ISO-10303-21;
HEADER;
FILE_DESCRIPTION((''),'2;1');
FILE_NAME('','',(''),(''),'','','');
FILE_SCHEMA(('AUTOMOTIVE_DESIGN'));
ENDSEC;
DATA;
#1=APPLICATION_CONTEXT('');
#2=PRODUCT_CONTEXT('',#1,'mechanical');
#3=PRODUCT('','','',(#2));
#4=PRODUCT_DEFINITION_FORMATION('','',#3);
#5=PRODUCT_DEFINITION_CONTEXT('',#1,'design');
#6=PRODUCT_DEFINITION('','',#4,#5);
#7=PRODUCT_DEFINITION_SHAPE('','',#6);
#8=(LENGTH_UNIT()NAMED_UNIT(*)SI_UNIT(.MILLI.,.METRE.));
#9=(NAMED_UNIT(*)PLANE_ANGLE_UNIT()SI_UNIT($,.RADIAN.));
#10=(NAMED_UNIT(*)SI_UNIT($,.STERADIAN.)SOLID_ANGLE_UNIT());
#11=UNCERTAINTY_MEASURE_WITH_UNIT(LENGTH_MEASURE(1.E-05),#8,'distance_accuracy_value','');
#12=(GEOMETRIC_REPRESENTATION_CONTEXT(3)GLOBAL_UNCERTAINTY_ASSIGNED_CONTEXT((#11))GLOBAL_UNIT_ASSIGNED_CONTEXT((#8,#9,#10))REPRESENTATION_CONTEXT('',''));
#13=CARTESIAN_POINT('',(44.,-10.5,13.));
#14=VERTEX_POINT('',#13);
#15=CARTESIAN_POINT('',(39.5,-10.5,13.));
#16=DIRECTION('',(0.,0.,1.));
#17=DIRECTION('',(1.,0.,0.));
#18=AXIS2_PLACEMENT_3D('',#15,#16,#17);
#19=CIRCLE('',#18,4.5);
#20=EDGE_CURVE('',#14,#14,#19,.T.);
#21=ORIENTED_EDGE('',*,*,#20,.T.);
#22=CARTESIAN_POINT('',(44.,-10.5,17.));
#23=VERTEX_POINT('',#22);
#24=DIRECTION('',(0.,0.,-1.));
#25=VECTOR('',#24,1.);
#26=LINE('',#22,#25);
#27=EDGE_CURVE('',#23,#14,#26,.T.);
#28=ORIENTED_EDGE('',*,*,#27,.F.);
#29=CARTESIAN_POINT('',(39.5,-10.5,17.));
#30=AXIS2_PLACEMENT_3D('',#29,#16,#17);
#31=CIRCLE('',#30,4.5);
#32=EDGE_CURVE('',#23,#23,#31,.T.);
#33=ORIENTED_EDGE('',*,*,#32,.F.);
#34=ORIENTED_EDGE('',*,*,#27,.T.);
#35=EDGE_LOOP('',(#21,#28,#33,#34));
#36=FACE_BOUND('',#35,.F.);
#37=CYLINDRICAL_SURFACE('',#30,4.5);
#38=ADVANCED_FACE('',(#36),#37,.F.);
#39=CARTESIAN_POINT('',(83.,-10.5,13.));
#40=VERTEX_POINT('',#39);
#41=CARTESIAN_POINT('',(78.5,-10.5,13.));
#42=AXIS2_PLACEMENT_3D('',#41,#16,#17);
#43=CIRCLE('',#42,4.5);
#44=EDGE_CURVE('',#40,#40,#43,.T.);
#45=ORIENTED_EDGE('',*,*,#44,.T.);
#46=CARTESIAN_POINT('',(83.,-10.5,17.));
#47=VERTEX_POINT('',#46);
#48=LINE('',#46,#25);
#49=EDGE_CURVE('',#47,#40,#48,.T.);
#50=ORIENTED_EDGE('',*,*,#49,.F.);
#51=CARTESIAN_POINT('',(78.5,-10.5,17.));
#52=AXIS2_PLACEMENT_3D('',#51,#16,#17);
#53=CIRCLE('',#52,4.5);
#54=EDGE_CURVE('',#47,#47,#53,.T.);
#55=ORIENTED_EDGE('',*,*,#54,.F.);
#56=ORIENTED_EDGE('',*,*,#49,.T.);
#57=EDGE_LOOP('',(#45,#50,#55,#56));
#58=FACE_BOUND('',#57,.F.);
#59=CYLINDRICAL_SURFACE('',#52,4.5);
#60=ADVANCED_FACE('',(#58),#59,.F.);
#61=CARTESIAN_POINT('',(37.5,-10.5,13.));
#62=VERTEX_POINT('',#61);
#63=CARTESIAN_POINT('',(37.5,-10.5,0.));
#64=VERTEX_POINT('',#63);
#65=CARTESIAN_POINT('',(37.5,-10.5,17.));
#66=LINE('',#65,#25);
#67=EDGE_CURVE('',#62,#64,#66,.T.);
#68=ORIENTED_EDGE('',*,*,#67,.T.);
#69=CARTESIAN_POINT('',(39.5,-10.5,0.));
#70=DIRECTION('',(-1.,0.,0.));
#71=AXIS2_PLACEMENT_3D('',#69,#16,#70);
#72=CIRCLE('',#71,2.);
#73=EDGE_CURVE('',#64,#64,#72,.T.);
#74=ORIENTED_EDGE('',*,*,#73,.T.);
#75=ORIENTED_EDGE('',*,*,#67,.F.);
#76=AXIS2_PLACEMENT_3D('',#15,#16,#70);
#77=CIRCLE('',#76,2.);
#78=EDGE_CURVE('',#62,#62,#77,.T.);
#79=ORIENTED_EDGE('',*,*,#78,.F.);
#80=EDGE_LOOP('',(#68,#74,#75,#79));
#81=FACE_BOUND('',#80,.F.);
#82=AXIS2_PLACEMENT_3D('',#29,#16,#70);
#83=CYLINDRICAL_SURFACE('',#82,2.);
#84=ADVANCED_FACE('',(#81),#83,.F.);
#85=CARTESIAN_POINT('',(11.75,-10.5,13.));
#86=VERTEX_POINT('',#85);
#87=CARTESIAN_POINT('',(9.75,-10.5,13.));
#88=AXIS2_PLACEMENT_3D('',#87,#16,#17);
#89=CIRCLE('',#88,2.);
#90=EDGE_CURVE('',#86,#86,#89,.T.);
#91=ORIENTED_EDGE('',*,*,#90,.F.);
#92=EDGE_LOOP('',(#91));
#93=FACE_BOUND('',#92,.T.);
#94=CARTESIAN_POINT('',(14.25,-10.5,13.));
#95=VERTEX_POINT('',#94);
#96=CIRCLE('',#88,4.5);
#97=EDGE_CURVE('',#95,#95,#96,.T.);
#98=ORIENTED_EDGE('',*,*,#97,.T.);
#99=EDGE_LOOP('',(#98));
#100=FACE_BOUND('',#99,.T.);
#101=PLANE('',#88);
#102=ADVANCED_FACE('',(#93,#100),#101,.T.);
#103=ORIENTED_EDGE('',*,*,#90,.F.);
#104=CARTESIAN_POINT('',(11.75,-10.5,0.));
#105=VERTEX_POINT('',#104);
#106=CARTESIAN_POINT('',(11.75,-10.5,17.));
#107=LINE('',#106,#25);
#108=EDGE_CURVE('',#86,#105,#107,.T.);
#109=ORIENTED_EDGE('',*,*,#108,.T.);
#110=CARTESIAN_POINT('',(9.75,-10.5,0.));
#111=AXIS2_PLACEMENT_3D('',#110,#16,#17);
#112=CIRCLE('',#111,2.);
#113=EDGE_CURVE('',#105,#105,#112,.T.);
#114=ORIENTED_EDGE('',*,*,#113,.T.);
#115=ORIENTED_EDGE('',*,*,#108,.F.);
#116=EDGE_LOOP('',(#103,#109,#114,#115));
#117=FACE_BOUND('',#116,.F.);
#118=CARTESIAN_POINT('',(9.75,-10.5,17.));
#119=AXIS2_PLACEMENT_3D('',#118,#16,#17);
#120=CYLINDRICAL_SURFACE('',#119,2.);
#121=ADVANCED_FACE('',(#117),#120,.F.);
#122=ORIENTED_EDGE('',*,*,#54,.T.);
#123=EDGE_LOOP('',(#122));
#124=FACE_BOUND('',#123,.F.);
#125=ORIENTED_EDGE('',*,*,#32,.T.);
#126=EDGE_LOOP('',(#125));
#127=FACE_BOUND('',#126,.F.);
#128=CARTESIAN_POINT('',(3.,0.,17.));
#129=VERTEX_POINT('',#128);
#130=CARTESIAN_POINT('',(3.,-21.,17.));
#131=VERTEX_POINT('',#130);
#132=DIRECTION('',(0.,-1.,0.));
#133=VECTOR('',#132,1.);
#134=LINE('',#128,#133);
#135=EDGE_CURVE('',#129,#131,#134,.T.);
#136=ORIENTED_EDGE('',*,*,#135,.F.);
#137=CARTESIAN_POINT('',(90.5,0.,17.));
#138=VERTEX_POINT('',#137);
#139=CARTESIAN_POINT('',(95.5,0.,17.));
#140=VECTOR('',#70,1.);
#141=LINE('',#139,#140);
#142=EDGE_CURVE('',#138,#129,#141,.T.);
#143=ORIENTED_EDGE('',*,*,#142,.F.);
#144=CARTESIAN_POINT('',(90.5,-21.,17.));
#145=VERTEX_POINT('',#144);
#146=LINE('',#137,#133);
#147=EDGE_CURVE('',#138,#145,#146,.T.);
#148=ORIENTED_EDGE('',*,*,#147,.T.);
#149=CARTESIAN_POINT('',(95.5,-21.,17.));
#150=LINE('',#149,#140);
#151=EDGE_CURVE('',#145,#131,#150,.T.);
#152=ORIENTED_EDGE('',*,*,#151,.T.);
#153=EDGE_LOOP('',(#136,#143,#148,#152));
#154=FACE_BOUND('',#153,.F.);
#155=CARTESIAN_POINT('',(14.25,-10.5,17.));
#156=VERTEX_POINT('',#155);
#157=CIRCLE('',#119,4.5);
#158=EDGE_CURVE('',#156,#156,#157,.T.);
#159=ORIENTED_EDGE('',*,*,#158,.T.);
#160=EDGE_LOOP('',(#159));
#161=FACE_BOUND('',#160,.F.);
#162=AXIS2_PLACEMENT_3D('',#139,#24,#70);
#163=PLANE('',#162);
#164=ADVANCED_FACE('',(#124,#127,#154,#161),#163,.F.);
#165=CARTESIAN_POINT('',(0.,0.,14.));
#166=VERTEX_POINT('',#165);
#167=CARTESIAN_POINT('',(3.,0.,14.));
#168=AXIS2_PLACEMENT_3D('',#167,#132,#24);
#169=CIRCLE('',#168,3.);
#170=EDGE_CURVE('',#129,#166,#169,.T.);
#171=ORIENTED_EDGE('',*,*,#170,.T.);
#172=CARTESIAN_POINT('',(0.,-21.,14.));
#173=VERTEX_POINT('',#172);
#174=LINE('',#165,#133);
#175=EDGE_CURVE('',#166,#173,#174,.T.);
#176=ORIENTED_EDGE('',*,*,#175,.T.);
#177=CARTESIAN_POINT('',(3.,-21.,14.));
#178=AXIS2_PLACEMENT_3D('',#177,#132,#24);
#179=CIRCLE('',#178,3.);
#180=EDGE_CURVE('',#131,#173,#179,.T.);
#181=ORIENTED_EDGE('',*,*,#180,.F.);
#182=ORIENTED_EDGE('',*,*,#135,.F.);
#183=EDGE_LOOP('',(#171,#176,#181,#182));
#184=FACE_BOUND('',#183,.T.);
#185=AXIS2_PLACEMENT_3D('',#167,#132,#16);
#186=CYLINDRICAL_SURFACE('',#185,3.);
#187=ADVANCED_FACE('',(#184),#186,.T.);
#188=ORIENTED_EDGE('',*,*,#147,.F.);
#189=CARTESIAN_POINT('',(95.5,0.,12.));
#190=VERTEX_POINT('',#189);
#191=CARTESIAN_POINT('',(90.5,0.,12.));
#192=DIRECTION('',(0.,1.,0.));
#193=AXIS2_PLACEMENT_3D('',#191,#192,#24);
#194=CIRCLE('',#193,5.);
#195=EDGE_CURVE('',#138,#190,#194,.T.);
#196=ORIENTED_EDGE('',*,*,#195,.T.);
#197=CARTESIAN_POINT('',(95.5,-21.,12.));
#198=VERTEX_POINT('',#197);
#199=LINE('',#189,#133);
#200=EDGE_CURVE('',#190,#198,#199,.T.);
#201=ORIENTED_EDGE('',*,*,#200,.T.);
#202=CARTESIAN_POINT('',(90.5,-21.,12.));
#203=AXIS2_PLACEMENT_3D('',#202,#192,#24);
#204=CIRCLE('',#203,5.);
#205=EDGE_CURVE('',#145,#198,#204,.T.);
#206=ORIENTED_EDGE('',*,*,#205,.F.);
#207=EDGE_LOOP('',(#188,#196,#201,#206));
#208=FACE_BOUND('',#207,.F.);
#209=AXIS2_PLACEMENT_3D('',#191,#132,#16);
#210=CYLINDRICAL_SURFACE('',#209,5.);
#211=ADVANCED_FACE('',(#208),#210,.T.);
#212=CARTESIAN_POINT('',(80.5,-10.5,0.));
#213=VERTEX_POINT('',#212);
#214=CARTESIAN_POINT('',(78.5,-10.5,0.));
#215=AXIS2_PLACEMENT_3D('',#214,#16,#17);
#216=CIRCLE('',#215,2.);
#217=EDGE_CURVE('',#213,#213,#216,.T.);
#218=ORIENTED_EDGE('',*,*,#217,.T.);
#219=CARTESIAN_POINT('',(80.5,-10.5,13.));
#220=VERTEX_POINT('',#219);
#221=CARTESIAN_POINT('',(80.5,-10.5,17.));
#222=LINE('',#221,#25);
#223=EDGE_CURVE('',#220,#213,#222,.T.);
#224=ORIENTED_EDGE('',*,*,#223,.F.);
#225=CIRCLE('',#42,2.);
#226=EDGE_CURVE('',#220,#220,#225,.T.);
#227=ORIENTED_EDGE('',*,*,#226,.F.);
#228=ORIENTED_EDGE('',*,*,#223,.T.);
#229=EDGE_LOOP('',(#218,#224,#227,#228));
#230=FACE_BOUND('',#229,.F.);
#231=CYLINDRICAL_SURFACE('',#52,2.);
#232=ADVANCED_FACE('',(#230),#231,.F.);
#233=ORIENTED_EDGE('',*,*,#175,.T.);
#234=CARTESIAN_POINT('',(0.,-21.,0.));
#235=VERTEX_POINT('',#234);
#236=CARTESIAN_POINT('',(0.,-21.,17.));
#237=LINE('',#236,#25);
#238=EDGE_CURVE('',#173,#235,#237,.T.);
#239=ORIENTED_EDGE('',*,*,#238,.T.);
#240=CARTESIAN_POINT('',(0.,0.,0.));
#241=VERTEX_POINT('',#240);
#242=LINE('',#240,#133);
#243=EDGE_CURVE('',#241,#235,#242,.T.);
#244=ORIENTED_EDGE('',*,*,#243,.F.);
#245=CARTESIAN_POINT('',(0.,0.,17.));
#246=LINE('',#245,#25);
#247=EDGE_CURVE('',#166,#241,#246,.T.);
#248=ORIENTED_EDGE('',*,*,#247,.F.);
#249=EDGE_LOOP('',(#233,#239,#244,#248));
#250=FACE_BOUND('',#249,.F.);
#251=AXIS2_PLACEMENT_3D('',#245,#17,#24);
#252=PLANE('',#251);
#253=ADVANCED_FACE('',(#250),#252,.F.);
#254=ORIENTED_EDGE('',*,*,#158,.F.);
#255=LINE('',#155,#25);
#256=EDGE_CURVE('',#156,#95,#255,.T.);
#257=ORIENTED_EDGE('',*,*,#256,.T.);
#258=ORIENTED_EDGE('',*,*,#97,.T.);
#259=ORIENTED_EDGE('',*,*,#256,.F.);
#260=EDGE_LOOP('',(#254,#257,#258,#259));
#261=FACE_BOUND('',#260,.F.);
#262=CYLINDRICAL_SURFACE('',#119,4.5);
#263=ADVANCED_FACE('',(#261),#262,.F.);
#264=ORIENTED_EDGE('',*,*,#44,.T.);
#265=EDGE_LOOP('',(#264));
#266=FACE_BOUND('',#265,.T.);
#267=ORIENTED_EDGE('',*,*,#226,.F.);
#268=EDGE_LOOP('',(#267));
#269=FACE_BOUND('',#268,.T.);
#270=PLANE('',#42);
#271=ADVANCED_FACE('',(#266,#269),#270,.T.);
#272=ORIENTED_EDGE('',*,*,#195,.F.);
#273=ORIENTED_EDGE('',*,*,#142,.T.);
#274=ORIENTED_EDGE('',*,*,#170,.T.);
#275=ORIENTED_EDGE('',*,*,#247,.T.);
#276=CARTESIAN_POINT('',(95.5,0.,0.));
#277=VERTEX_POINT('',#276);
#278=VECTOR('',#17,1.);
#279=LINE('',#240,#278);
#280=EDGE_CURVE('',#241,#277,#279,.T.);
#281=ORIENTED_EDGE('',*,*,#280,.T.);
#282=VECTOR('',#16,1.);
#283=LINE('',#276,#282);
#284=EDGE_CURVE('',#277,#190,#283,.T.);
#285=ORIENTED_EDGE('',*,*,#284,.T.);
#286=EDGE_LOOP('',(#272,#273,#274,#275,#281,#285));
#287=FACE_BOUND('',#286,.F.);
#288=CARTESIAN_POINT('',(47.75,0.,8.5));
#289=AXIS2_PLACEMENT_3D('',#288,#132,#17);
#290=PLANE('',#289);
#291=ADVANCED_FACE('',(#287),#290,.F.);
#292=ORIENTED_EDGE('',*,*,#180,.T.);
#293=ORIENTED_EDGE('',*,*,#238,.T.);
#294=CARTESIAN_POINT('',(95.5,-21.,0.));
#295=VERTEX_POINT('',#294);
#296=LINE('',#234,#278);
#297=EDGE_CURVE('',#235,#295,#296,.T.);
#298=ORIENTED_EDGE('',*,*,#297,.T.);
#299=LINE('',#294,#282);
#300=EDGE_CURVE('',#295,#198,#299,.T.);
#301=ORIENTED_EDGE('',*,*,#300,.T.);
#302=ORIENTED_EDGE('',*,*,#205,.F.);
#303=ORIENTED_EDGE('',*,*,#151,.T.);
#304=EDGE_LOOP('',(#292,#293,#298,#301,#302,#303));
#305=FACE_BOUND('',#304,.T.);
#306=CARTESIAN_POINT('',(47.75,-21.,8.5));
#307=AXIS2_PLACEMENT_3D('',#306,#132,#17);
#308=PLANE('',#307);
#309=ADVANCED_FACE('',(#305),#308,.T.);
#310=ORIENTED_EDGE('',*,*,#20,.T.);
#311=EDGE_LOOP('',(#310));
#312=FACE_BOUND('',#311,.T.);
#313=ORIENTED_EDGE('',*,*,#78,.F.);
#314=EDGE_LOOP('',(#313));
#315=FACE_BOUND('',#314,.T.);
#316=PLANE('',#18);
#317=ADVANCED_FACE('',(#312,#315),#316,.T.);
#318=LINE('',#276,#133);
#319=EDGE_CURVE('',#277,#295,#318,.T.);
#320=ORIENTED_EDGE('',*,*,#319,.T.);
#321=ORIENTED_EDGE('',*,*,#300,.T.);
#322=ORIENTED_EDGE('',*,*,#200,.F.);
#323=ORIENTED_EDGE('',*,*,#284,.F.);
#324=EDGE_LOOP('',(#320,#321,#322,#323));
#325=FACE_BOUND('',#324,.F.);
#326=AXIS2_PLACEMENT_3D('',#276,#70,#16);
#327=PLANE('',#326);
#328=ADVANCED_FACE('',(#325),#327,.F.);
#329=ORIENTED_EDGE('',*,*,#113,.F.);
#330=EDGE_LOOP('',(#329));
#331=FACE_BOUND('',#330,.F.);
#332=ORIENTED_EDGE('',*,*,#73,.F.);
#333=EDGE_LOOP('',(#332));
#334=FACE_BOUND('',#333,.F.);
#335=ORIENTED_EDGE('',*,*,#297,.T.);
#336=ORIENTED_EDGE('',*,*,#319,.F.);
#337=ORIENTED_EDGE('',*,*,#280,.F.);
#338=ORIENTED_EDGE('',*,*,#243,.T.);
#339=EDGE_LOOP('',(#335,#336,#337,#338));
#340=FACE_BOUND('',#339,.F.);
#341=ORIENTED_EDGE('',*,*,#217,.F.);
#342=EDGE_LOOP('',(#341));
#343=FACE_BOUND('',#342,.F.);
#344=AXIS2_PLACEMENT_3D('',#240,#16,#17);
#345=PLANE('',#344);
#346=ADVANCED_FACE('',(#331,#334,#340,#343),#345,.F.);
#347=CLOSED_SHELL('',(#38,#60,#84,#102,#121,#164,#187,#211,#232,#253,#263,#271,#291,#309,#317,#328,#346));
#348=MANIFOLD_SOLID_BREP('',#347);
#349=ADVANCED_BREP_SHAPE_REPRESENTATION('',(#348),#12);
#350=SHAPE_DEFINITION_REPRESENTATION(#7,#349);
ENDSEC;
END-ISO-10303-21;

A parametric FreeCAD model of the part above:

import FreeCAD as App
import Part
import Sketcher

V = App.Vector


def edges_at(feature, points):
    """Names of the edges that pass closest to the given points."""
    edges = feature.Shape.Edges
    near = lambda p: min(range(len(edges)), key=lambda i: edges[i].distToShape(Part.Vertex(*p))[0])
    return sorted({f"Edge{near(p) + 1}" for p in points})


def add_polygon(sketch, points):
    """Adds a closed chain of lines whose ends are joined by coincident constraints."""
    first, n = sketch.GeometryCount, len(points)
    for a, b in zip(points, points[1:] + points[:1]):
        sketch.addGeometry(Part.LineSegment(App.Vector(*a, 0), App.Vector(*b, 0)), False)
    for i in range(n):
        sketch.addConstraint(Sketcher.Constraint("Coincident", first + i, 2, first + (i + 1) % n, 1))

doc = App.newDocument("Part")
params = doc.addObject("Spreadsheet::Sheet", "Params")
for row, (alias, value) in enumerate([
    ("sketch1_height", "17 mm"),
    ("sketch1_width", "95.5 mm"),
    ("pad1_length", "21 mm"),
    ("fillet_radius", "5 mm"),
    ("sketch2_diameter", "4 mm"),
    ("pocket1_length", "25 mm"),
    ("sketch3_diameter", "9 mm"),
    ("pocket2_length", "4 mm"),
    ("fillet2_radius", "3 mm"),
], start=1):
    params.set(f"A{row}", alias)
    params.set(f"B{row}", "=" + value)
    params.setAlias(f"B{row}", alias)

body = doc.addObject("PartDesign::Body", "Body")

sketch1 = doc.addObject("Sketcher::SketchObject", "Sketch")
body.addObject(sketch1)
sketch1.AttachmentSupport = (doc.XZ_Plane, [""])
sketch1.MapMode = "FlatFace"
add_polygon(sketch1, [(95.5, 17), (0, 17), (0, 0), (95.5, 0)])
sketch1.addConstraint(Sketcher.Constraint("Horizontal", 0))
sketch1.addConstraint(Sketcher.Constraint("Vertical", 1))
sketch1.addConstraint(Sketcher.Constraint("Horizontal", 2))
sketch1.addConstraint(Sketcher.Constraint("Vertical", 3))
sketch1.addConstraint(Sketcher.Constraint("Coincident", 1, 2, -1, 1))
sketch1.addConstraint(Sketcher.Constraint("DistanceY", 1, 2, 1, 1, 17.0))
sketch1.addConstraint(Sketcher.Constraint("DistanceX", 0, 2, 0, 1, 95.5))
sketch1.setExpression("Constraints[9]", "Params.sketch1_height")
sketch1.setExpression("Constraints[10]", "Params.sketch1_width")
pad1 = doc.addObject("PartDesign::Pad", "Pad")
body.addObject(pad1)
pad1.Profile = sketch1
pad1.setExpression("Length", "Params.pad1_length")
doc.recompute()

fillet = doc.addObject("PartDesign::Fillet", "Fillet")
body.addObject(fillet)
fillet.Base = (pad1, edges_at(pad1, [(95.5, -10.5, 17)]))
fillet.setExpression("Radius", "Params.fillet_radius")

sketch2 = doc.addObject("Sketcher::SketchObject", "Sketch001")
body.addObject(sketch2)
sketch2.AttachmentSupport = (doc.XY_Plane, [""])
sketch2.MapMode = "FlatFace"
sketch2.AttachmentOffset = App.Placement(V(0, 0, 17), App.Rotation())
sketch2.addGeometry(Part.Circle(V(39.5, -10.5, 0), V(0, 0, 1), 2), False)
sketch2.addGeometry(Part.Circle(V(9.75, -10.5, 0), V(0, 0, 1), 2), False)
sketch2.addGeometry(Part.Circle(V(78.5, -10.5, 0), V(0, 0, 1), 2), False)
sketch2.addConstraint(Sketcher.Constraint("Equal", 0, 1))
sketch2.addConstraint(Sketcher.Constraint("Equal", 1, 2))
sketch2.addConstraint(Sketcher.Constraint("Horizontal", 0, 3, 1, 3))
sketch2.addConstraint(Sketcher.Constraint("Horizontal", 1, 3, 2, 3))
sketch2.addConstraint(Sketcher.Constraint("Diameter", 0, 4.0))
sketch2.addConstraint(Sketcher.Constraint("DistanceX", 0, 3, 2, 3, 39.0))
sketch2.addConstraint(Sketcher.Constraint("DistanceX", -1, 1, 0, 3, 39.5))
sketch2.addConstraint(Sketcher.Constraint("DistanceY", 0, 3, -1, 1, 10.5))
sketch2.addConstraint(Sketcher.Constraint("DistanceX", -1, 1, 1, 3, 9.75))
sketch2.setExpression("Constraints[4]", "Params.sketch2_diameter")
pocket1 = doc.addObject("PartDesign::Pocket", "Pocket")
body.addObject(pocket1)
pocket1.Profile = sketch2
pocket1.setExpression("Length", "Params.pocket1_length")

sketch3 = doc.addObject("Sketcher::SketchObject", "Sketch002")
body.addObject(sketch3)
sketch3.AttachmentSupport = (doc.XY_Plane, [""])
sketch3.MapMode = "FlatFace"
sketch3.AttachmentOffset = App.Placement(V(0, 0, 17), App.Rotation())
sketch3.addGeometry(Part.Circle(V(9.75, -10.5, 0), V(0, 0, 1), 4.5), False)
sketch3.addGeometry(Part.Circle(V(39.5, -10.5, 0), V(0, 0, 1), 4.5), False)
sketch3.addGeometry(Part.Circle(V(78.5, -10.5, 0), V(0, 0, 1), 4.5), False)
sketch3.addConstraint(Sketcher.Constraint("Equal", 0, 1))
sketch3.addConstraint(Sketcher.Constraint("Equal", 1, 2))
sketch3.addConstraint(Sketcher.Constraint("Horizontal", 0, 3, 1, 3))
sketch3.addConstraint(Sketcher.Constraint("Horizontal", 1, 3, 2, 3))
sketch3.addConstraint(Sketcher.Constraint("Diameter", 0, 9.0))
sketch3.addConstraint(Sketcher.Constraint("DistanceX", 1, 3, 2, 3, 39.0))
sketch3.addConstraint(Sketcher.Constraint("DistanceY", 0, 3, -1, 1, 10.5))
sketch3.addConstraint(Sketcher.Constraint("DistanceX", -1, 1, 1, 3, 39.5))
sketch3.addConstraint(Sketcher.Constraint("DistanceX", -1, 1, 0, 3, 9.75))
sketch3.setExpression("Constraints[4]", "Params.sketch3_diameter")
pocket2 = doc.addObject("PartDesign::Pocket", "Pocket001")
body.addObject(pocket2)
pocket2.Profile = sketch3
pocket2.setExpression("Length", "Params.pocket2_length")
doc.recompute()

fillet2 = doc.addObject("PartDesign::Fillet", "Fillet001")
body.addObject(fillet2)
fillet2.Base = (pocket2, edges_at(pocket2, [(0, -10.5, 17)]))
fillet2.setExpression("Radius", "Params.fillet2_radius")

doc.recompute()
